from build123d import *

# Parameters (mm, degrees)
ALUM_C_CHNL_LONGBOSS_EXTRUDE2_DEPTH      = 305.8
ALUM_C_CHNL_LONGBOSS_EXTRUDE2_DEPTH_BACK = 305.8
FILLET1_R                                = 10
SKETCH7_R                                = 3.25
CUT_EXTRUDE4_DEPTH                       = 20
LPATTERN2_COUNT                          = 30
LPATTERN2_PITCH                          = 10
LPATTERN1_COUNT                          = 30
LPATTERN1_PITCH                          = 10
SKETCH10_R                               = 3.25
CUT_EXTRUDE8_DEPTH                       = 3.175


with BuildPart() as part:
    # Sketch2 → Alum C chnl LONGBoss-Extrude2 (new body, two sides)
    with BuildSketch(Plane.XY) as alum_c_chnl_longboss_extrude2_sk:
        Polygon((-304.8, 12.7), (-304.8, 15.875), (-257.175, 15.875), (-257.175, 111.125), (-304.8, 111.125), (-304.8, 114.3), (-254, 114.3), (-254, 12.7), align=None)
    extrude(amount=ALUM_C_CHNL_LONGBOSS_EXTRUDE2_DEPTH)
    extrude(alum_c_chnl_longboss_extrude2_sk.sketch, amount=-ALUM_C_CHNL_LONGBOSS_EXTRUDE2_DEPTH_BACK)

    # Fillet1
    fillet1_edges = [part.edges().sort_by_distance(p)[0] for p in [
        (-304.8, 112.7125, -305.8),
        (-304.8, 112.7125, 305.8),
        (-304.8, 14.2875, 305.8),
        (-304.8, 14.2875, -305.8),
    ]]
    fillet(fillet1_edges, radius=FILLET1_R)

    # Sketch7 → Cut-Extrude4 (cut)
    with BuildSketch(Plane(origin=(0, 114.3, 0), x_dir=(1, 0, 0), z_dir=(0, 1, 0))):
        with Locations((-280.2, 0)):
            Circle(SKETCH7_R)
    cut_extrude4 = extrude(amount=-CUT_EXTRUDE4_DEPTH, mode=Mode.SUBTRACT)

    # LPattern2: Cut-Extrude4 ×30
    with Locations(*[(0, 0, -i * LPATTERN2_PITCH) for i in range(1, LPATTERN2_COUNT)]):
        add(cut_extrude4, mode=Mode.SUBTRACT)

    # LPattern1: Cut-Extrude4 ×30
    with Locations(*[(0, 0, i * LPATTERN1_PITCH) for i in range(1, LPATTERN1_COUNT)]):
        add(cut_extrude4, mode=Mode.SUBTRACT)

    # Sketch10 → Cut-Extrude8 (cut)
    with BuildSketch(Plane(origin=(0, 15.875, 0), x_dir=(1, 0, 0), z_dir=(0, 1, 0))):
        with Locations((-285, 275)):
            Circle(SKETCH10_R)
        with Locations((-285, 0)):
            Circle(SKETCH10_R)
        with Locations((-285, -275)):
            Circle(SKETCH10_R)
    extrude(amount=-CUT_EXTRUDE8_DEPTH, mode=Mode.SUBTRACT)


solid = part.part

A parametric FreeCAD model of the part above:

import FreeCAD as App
import Part
import Sketcher
from FreeCAD import Vector
Q = App.Units.Quantity


def edges_at(feature, points):
    """Names of the edges that pass closest to the given points."""
    edges = feature.Shape.Edges
    near = lambda p: min(range(len(edges)), key=lambda i: edges[i].distToShape(Part.Vertex(*p))[0])
    return sorted({f"Edge{near(p) + 1}" for p in points})

doc = App.newDocument("Part")
body = doc.addObject("PartDesign::Body", "Body")

# Sketch on XY plane
sketch1 = body.newObject("Sketcher::SketchObject", "Sketch")
sketch1.AttachmentSupport = (doc.getObject("XY_Plane"), [""])
sketch1.MapMode = "FlatFace"
sketch1.addGeometry(Part.LineSegment(Vector(-304.8, 15.875, 0), Vector(-304.8, 12.7, 0)), False)
sketch1.addGeometry(Part.LineSegment(Vector(-304.8, 12.7, 0), Vector(-254, 12.7, 0)), False)
sketch1.addGeometry(Part.LineSegment(Vector(-254, 12.7, 0), Vector(-254, 114.3, 0)), False)
sketch1.addGeometry(Part.LineSegment(Vector(-254, 114.3, 0), Vector(-304.8, 114.3, 0)), False)
sketch1.addGeometry(Part.LineSegment(Vector(-304.8, 114.3, 0), Vector(-304.8, 111.125, 0)), False)
sketch1.addGeometry(Part.LineSegment(Vector(-304.8, 111.125, 0), Vector(-257.175, 111.125, 0)), False)
sketch1.addGeometry(Part.LineSegment(Vector(-257.175, 111.125, 0), Vector(-257.175, 15.875, 0)), False)
sketch1.addGeometry(Part.LineSegment(Vector(-257.175, 15.875, 0), Vector(-304.8, 15.875, 0)), False)
sketch1.addConstraint(Sketcher.Constraint("Coincident", 0, 2, 1, 1))
sketch1.addConstraint(Sketcher.Constraint("Coincident", 1, 2, 2, 1))
sketch1.addConstraint(Sketcher.Constraint("Coincident", 2, 2, 3, 1))
sketch1.addConstraint(Sketcher.Constraint("Coincident", 3, 2, 4, 1))
sketch1.addConstraint(Sketcher.Constraint("Coincident", 4, 2, 5, 1))
sketch1.addConstraint(Sketcher.Constraint("Coincident", 5, 2, 6, 1))
sketch1.addConstraint(Sketcher.Constraint("Coincident", 6, 2, 7, 1))
sketch1.addConstraint(Sketcher.Constraint("Coincident", 7, 2, 0, 1))
sketch1.addConstraint(Sketcher.Constraint("Vertical", 0))
sketch1.addConstraint(Sketcher.Constraint("Horizontal", 1))
sketch1.addConstraint(Sketcher.Constraint("Vertical", 2))
sketch1.addConstraint(Sketcher.Constraint("Horizontal", 3))
sketch1.addConstraint(Sketcher.Constraint("Vertical", 4))
sketch1.addConstraint(Sketcher.Constraint("Horizontal", 5))
sketch1.addConstraint(Sketcher.Constraint("Vertical", 6))
sketch1.addConstraint(Sketcher.Constraint("Horizontal", 7))
sketch1.addConstraint(Sketcher.Constraint("Vertical", 0, 2, 3, 2))
sketch1.addConstraint(Sketcher.Constraint("Equal", 0, 4))
sketch1.addConstraint(Sketcher.Constraint("DistanceX", 1, 1, 1, 2, Q("2 in")))
sketch1.addConstraint(Sketcher.Constraint("DistanceY", 2, 1, 2, 2, Q("4 in")))
sketch1.addConstraint(Sketcher.Constraint("DistanceX", 0, 2, -1, 1, Q("12 in")))
sketch1.addConstraint(Sketcher.Constraint("DistanceY", 6, 2, 6, 1, Q("3.75 in")))
sketch1.addConstraint(Sketcher.Constraint("DistanceY", -1, 1, 0, 2, Q("0.5 in")))
sketch1.addConstraint(Sketcher.Constraint("DistanceX", 5, 1, 5, 2, Q("1.875 in")))
pad1 = body.newObject("PartDesign::Pad", "Pad")
pad1.Profile = sketch1
pad1.Type = "TwoLengths"
pad1.Length = 305.8
pad1.Length2 = 305.8
doc.recompute()

fillet = body.newObject("PartDesign::Fillet", "Fillet")
fillet.Base = (pad1, edges_at(pad1, [
    (-304.8, 112.713, -305.8),
    (-304.8, 112.713, 305.8),
    (-304.8, 14.287, 305.8),
    (-304.8, 14.287, -305.8),
]))
fillet.Radius = 10

# Sketch on XZ plane
sketch2 = body.newObject("Sketcher::SketchObject", "Sketch001")
sketch2.AttachmentSupport = (doc.getObject("XZ_Plane"), [""])
sketch2.MapMode = "FlatFace"
sketch2.AttachmentOffset = App.Placement(Vector(0, 0, -4.5 * 25.4), App.Rotation())
sketch2.addGeometry(Part.Circle(Vector(-280.2, 0, 0), Vector(0, 0, 1), 3.25), False)
sketch2.addConstraint(Sketcher.Constraint("PointOnObject", 0, 3, -1))
sketch2.addConstraint(Sketcher.Constraint("Diameter", 0, 6.5))
sketch2.addConstraint(Sketcher.Constraint("DistanceX", 0, 3, -1, 1, 280.2))
pocket1 = body.newObject("PartDesign::Pocket", "Pocket")
pocket1.Profile = sketch2
pocket1.Length = 20
pocket1.Reversed = True
doc.recompute()

linearpattern = body.newObject("PartDesign::LinearPattern", "LinearPattern")
linearpattern.Originals = [pocket1]
linearpattern.Direction = (doc.getObject("Z_Axis"), [""])
linearpattern.Mode = "offset"
linearpattern.Offset = 10
linearpattern.Occurrences = 30
linearpattern.Reversed = True
body.Tip = linearpattern
doc.recompute()

linearpattern2 = body.newObject("PartDesign::LinearPattern", "LinearPattern001")
linearpattern2.Originals = [pocket1]
linearpattern2.Direction = (doc.getObject("Z_Axis"), [""])
linearpattern2.Mode = "offset"
linearpattern2.Offset = 10
linearpattern2.Occurrences = 30
body.Tip = linearpattern2

# Sketch on XZ plane
sketch3 = body.newObject("Sketcher::SketchObject", "Sketch002")
sketch3.AttachmentSupport = (doc.getObject("XZ_Plane"), [""])
sketch3.MapMode = "FlatFace"
sketch3.AttachmentOffset = App.Placement(Vector(0, 0, -0.625 * 25.4), App.Rotation())
sketch3.addGeometry(Part.Circle(Vector(-285, -275, 0), Vector(0, 0, 1), 3.25), False)
sketch3.addGeometry(Part.Circle(Vector(-285, 0, 0), Vector(0, 0, 1), 3.25), False)
sketch3.addGeometry(Part.Circle(Vector(-285, 275, 0), Vector(0, 0, 1), 3.25), False)
sketch3.addConstraint(Sketcher.Constraint("Equal", 0, 1))
sketch3.addConstraint(Sketcher.Constraint("Equal", 1, 2))
sketch3.addConstraint(Sketcher.Constraint("Symmetric", 0, 3, 2, 3, -1))
sketch3.addConstraint(Sketcher.Constraint("PointOnObject", 1, 3, -1))
sketch3.addConstraint(Sketcher.Constraint("Vertical", 0, 3, 1, 3))
sketch3.addConstraint(Sketcher.Constraint("Diameter", 0, 6.5))
sketch3.addConstraint(Sketcher.Constraint("DistanceX", 0, 3, -1, 1, 285.0))
sketch3.addConstraint(Sketcher.Constraint("DistanceY", 0, 3, -1, 1, 275.0))
pocket2 = body.newObject("PartDesign::Pocket", "Pocket001")
pocket2.Profile = sketch3
pocket2.Length = Q("0.125 in")
pocket2.Reversed = True

doc.recompute()
